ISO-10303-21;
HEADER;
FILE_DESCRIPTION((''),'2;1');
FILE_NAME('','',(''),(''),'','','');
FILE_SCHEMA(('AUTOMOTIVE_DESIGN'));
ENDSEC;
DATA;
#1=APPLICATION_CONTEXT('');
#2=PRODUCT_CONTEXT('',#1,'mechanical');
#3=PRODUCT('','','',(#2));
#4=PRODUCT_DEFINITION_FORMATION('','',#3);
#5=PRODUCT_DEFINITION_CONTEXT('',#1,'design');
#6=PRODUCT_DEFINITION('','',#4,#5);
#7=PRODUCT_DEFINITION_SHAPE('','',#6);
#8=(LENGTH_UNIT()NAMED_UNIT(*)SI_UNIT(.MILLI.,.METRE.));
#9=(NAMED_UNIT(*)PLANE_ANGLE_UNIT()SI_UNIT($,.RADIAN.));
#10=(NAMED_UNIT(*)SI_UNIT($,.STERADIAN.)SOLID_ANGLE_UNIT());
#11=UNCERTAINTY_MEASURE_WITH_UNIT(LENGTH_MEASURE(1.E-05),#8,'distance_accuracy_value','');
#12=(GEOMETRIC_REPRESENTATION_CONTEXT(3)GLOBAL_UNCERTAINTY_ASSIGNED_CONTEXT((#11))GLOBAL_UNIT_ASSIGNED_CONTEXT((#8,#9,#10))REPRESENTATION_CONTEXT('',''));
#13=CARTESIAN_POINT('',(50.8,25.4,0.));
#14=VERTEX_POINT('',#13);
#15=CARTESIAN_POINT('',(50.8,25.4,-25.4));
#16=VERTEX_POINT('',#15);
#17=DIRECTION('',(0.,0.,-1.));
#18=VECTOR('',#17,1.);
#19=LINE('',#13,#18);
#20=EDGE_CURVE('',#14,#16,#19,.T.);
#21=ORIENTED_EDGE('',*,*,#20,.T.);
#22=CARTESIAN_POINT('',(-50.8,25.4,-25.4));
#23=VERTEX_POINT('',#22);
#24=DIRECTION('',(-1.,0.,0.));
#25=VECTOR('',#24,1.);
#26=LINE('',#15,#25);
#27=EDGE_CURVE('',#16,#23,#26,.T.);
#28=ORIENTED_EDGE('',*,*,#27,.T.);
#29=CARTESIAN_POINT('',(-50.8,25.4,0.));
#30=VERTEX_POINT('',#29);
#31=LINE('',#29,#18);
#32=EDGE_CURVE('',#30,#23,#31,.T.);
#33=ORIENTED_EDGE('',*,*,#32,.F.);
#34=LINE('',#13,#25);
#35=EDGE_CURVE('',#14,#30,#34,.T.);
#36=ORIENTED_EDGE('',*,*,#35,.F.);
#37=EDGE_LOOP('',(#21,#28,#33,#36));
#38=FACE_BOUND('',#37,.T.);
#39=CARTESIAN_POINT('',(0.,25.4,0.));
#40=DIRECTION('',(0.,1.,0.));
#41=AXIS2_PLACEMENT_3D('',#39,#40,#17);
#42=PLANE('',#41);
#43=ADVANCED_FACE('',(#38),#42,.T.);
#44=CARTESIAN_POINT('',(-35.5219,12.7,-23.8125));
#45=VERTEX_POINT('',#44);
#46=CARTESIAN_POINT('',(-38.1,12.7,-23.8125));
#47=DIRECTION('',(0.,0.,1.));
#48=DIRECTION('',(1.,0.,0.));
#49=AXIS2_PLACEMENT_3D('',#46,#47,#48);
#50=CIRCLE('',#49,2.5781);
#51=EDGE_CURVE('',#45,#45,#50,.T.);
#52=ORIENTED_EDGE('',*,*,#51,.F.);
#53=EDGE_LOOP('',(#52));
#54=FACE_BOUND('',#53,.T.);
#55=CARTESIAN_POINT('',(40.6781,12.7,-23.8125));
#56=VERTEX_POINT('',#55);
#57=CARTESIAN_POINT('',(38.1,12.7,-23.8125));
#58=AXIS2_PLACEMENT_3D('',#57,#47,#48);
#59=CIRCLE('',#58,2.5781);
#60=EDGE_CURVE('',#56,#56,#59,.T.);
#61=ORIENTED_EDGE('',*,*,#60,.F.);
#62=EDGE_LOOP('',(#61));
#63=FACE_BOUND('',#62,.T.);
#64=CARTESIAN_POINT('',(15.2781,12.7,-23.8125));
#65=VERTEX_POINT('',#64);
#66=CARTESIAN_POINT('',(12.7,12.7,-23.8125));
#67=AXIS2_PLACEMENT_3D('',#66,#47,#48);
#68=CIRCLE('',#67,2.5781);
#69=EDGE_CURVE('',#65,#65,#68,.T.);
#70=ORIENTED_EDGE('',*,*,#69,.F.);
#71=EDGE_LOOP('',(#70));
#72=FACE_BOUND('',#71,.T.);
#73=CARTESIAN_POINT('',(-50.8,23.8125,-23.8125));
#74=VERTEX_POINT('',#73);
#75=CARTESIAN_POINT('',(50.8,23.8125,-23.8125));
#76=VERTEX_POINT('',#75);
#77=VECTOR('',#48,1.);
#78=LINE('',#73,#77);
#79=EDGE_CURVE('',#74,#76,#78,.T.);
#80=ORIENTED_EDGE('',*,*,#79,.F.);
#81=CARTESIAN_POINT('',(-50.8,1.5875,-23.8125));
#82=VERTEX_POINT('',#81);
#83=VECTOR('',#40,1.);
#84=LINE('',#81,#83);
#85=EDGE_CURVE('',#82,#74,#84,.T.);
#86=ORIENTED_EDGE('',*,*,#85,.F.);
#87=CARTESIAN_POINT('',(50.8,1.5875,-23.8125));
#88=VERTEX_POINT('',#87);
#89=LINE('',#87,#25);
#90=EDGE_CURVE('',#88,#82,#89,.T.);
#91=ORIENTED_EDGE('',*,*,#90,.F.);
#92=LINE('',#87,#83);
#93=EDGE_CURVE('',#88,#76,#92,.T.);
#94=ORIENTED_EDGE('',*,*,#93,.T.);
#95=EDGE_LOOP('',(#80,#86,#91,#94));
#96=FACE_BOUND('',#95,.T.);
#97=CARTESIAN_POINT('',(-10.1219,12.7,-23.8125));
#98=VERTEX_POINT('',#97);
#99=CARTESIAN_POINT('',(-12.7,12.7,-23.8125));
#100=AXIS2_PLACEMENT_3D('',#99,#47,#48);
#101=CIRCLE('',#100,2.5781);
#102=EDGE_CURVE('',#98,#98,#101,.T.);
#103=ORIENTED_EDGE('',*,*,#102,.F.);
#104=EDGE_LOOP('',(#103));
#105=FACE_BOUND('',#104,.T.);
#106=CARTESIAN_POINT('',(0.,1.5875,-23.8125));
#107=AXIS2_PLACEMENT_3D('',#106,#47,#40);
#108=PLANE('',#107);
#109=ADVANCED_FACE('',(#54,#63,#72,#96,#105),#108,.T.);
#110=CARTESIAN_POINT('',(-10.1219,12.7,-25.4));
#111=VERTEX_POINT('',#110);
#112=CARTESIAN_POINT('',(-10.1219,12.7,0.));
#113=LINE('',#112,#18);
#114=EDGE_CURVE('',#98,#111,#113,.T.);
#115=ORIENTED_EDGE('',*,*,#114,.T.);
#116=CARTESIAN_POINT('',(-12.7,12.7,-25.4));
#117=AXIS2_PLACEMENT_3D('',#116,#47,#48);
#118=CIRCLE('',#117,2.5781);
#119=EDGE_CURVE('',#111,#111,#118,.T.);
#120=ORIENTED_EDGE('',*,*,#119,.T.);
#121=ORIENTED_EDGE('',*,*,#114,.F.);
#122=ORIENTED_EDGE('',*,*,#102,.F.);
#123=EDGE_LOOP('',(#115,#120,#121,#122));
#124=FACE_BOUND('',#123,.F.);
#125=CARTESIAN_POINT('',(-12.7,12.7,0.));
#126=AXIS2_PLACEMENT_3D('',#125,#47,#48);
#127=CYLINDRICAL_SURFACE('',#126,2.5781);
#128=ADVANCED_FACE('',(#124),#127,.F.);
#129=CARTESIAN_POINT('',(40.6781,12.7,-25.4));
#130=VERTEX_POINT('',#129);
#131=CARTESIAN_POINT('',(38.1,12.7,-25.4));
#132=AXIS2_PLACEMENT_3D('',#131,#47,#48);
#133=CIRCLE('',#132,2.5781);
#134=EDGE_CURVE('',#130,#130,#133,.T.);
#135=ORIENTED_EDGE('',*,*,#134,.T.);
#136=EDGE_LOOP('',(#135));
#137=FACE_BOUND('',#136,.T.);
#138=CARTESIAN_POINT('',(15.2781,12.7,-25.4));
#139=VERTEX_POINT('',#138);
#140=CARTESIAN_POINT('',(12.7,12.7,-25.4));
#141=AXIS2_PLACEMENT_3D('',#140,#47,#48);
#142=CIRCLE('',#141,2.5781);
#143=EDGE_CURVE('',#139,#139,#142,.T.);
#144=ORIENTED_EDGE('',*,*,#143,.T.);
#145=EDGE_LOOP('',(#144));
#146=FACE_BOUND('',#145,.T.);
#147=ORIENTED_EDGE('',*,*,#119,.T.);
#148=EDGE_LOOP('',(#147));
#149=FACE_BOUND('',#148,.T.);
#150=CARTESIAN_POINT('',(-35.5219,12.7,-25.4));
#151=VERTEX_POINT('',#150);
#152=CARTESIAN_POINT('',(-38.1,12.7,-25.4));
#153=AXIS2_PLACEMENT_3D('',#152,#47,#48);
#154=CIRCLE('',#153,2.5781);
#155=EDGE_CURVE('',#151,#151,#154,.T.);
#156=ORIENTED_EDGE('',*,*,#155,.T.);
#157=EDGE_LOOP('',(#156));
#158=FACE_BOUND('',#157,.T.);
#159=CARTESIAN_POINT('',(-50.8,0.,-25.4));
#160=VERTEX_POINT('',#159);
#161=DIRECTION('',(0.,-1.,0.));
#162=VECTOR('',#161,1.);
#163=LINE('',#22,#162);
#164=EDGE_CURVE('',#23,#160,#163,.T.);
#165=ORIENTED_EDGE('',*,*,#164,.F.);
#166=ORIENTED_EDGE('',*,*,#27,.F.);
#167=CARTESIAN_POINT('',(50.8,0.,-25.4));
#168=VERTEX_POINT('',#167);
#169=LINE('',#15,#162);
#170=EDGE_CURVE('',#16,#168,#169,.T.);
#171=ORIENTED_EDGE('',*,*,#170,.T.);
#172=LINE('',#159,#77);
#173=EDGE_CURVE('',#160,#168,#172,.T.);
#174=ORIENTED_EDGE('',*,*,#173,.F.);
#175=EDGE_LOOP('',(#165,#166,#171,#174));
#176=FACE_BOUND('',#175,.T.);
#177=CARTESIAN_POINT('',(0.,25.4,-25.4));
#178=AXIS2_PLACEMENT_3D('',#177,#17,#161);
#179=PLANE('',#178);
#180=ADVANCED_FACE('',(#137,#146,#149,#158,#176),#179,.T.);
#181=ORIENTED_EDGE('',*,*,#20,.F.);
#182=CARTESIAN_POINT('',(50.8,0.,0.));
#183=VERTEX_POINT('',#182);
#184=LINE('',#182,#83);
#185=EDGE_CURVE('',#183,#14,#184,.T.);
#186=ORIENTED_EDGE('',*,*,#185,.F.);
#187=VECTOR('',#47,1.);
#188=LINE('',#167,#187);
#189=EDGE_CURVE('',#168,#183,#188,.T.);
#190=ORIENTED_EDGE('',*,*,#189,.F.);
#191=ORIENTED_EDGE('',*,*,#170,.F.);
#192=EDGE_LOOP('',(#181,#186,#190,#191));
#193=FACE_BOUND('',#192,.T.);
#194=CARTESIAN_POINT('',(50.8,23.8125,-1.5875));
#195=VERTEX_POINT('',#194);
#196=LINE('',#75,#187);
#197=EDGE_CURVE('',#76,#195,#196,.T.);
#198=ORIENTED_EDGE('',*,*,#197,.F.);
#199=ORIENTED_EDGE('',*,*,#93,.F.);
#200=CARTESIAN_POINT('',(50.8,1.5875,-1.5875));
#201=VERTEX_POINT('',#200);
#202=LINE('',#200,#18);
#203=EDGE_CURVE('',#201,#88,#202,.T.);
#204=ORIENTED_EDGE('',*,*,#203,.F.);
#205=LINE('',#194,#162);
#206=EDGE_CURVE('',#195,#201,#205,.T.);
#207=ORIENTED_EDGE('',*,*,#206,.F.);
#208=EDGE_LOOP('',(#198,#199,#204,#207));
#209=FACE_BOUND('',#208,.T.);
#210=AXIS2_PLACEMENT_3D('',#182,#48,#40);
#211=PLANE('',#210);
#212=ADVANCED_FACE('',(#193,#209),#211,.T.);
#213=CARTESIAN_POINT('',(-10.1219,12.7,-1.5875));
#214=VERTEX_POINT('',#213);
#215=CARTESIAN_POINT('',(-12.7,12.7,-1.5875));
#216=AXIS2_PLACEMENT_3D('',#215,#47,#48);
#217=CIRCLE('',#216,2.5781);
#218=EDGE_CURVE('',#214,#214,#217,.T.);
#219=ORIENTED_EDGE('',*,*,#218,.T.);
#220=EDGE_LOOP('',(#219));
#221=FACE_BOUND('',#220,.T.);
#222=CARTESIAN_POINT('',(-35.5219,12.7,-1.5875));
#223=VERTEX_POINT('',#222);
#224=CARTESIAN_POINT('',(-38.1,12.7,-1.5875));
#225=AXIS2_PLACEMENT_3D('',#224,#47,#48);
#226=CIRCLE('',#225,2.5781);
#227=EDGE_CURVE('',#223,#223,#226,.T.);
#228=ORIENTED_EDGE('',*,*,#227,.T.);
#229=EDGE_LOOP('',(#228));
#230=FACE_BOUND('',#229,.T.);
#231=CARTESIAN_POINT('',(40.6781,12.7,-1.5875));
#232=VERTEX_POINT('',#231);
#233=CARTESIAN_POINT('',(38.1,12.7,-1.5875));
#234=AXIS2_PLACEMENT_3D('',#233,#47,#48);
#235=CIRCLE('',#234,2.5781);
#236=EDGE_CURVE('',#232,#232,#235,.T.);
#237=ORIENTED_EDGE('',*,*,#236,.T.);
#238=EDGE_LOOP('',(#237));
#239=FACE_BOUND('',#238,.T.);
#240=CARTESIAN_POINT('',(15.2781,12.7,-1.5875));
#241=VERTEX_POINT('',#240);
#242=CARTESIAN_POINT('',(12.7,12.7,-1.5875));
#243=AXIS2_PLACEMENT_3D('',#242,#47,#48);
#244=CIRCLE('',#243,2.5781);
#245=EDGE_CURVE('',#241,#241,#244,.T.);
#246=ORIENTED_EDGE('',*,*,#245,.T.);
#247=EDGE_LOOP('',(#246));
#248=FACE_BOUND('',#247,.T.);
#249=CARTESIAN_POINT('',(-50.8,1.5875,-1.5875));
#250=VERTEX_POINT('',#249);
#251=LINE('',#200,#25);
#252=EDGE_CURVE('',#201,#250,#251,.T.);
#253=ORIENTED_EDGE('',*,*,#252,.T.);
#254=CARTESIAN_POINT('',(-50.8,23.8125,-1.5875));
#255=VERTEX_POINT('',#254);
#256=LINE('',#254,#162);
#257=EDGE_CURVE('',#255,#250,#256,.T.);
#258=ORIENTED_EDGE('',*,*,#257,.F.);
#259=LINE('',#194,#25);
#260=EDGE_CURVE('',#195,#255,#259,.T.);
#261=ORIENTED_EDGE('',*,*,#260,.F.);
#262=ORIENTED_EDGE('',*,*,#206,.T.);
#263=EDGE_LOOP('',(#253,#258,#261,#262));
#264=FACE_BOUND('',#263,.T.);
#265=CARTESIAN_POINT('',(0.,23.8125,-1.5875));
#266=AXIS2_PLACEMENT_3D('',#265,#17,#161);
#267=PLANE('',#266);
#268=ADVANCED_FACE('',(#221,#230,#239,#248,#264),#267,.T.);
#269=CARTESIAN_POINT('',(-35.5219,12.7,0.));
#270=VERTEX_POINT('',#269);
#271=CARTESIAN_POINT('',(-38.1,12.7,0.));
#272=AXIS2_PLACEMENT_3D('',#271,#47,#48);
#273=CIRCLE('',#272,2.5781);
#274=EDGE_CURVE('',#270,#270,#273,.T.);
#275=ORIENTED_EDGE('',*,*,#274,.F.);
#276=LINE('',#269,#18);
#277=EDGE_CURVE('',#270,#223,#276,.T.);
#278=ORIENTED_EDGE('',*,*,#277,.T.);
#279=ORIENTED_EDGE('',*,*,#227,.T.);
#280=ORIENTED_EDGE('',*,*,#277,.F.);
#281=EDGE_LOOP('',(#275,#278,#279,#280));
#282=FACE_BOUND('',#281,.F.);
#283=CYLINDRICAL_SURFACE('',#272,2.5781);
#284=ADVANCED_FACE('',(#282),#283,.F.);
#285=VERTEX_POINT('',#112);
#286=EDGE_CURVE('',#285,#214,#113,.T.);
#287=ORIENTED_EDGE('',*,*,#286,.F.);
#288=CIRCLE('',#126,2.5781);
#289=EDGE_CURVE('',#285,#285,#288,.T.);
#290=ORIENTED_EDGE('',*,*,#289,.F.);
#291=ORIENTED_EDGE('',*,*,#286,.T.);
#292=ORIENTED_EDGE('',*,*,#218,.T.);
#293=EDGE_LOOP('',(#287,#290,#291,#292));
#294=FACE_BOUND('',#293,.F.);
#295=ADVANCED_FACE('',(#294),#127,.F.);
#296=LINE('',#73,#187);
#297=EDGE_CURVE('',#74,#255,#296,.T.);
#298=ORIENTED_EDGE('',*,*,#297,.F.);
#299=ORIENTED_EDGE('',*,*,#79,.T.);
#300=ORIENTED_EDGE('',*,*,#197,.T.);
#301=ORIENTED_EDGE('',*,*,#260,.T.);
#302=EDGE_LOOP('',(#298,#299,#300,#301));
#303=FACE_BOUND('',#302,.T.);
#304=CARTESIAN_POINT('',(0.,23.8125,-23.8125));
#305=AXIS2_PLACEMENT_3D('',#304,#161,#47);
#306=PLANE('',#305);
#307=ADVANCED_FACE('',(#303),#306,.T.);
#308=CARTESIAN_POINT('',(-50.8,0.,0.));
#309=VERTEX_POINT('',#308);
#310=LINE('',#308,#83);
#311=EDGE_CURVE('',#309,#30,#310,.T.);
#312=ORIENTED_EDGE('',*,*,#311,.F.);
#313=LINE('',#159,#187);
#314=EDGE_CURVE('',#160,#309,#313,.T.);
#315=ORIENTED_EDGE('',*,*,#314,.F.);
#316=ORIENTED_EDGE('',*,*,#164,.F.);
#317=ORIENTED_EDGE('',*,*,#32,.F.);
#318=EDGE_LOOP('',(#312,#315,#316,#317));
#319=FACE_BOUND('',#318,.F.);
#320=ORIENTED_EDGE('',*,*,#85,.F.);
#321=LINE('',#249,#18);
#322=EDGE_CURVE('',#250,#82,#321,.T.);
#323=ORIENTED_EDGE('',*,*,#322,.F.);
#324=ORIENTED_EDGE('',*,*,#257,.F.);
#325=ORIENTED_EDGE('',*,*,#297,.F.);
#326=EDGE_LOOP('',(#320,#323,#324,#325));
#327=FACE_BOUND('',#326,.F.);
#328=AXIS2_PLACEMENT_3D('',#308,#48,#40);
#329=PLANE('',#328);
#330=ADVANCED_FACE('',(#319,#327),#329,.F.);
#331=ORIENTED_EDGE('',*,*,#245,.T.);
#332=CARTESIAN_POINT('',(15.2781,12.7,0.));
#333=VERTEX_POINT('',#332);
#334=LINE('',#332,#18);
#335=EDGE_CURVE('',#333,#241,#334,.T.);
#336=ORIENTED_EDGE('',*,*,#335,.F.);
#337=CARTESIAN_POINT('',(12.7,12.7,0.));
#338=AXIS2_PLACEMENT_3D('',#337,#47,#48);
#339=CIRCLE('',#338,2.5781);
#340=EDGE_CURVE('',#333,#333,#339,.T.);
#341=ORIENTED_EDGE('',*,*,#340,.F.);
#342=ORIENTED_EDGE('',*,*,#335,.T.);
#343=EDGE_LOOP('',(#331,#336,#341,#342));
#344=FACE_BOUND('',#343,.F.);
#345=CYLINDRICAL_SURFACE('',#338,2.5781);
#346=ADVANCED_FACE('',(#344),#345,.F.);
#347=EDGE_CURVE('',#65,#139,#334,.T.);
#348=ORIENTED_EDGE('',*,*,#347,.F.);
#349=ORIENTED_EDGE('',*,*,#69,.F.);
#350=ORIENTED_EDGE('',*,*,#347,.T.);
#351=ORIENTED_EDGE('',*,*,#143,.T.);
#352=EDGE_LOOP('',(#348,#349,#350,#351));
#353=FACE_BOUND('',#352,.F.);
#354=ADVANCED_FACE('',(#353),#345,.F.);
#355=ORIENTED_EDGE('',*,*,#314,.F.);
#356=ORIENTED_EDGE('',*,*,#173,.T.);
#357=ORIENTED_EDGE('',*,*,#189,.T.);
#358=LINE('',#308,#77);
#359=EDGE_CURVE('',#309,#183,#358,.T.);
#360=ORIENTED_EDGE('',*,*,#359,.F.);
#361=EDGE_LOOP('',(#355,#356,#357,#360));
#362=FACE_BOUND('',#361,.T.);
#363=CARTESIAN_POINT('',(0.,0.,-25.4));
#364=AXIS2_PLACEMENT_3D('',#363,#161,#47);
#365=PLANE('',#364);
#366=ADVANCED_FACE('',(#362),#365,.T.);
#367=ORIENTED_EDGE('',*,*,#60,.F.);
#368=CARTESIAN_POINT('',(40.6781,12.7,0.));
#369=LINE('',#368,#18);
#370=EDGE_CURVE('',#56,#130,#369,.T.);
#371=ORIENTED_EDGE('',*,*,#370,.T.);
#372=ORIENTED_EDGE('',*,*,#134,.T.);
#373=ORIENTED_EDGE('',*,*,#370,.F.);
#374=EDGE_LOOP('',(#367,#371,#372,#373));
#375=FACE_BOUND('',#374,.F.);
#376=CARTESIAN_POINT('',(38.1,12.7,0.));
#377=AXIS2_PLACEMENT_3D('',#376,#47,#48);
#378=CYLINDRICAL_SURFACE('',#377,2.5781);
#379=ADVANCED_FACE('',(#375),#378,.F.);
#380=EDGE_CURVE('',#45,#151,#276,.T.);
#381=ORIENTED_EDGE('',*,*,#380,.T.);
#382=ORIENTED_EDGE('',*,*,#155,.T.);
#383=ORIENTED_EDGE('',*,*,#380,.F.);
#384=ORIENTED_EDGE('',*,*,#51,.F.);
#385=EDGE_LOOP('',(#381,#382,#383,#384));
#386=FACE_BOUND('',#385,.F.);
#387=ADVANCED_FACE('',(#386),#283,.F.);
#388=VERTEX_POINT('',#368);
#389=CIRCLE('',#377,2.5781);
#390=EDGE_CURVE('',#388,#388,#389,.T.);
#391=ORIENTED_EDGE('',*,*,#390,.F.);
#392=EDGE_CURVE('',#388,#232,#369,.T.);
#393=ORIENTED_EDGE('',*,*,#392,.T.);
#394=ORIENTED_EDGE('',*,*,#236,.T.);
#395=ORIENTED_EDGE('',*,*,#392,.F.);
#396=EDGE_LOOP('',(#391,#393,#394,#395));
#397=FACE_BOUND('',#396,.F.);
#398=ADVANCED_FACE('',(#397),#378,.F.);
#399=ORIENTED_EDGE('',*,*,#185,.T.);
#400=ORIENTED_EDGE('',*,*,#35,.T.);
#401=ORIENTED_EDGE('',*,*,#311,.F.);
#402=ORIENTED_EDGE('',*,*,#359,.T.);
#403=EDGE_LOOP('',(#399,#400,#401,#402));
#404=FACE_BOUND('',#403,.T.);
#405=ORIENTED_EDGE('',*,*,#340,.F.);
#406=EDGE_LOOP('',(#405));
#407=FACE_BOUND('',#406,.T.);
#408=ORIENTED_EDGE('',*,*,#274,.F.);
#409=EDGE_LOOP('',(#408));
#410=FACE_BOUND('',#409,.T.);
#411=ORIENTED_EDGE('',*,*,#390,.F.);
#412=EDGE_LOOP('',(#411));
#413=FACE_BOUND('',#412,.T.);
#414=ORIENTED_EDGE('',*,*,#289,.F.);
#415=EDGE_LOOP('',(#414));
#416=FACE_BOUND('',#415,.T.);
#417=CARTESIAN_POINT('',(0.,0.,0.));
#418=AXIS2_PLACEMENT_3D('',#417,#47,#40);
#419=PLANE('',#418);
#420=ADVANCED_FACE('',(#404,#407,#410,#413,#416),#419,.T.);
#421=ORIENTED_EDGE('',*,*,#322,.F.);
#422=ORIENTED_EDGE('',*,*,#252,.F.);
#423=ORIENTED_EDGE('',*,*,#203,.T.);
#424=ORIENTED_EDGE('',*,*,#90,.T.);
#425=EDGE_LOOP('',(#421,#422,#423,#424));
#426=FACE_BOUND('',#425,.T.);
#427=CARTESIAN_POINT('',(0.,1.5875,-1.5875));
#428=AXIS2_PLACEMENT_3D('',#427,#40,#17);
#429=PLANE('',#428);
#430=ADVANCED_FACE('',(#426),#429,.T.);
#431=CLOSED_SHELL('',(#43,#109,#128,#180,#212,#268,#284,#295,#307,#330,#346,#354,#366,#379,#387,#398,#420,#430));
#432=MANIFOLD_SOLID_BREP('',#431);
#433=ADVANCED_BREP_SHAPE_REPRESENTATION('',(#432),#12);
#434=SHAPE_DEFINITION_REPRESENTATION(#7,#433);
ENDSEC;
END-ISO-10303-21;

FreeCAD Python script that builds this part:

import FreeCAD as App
import Part
import Sketcher
from FreeCAD import Vector
Q = App.Units.Quantity


def add_polygon(sketch, points):
    """Adds a closed chain of lines whose ends are joined by coincident constraints."""
    first, n = sketch.GeometryCount, len(points)
    for a, b in zip(points, points[1:] + points[:1]):
        sketch.addGeometry(Part.LineSegment(App.Vector(*a, 0), App.Vector(*b, 0)), False)
    for i in range(n):
        sketch.addConstraint(Sketcher.Constraint("Coincident", first + i, 2, first + (i + 1) % n, 1))

doc = App.newDocument("Part")
body = doc.addObject("PartDesign::Body", "Body")

# Sketch on YZ plane
sketch1 = body.newObject("Sketcher::SketchObject", "Sketch")
sketch1.AttachmentSupport = (doc.getObject("YZ_Plane"), [""])
sketch1.MapMode = "FlatFace"
add_polygon(sketch1, [(25.4, 0), (0, 0), (0, -25.4), (25.4, -25.4)])  # lines 0-3
add_polygon(sketch1, [(23.8125, -1.5875), (23.8125, -23.8125), (1.5875, -23.8125), (1.5875, -1.5875)])  # lines 4-7
sketch1.addConstraint([
    Sketcher.Constraint("Horizontal", 0),
    Sketcher.Constraint("Vertical", 1),
    Sketcher.Constraint("Horizontal", 2),
    Sketcher.Constraint("Vertical", 3),
    Sketcher.Constraint("Vertical", 4),
    Sketcher.Constraint("Horizontal", 5),
    Sketcher.Constraint("Vertical", 6),
    Sketcher.Constraint("Horizontal", 7),
    Sketcher.Constraint("Coincident", 0, 2, -1, 1),
    Sketcher.Constraint("Equal", 2, 1),
    Sketcher.Constraint("Equal", 7, 4),
    Sketcher.Constraint("DistanceX", 0, 2, 0, 1, Q("1 in")),
    Sketcher.Constraint("DistanceX", -1, 1, 5, 2, Q("0.0625 in")),
    Sketcher.Constraint("DistanceY", 6, 2, -1, 1, Q("0.0625 in")),
    Sketcher.Constraint("DistanceX", 4, 2, 2, 2, Q("0.0625 in")),
])
pad1 = body.newObject("PartDesign::Pad", "Pad")
pad1.Profile = sketch1
pad1.Length = Q("4 in")
pad1.Midplane = True

# Sketch on XY plane
sketch2 = body.newObject("Sketcher::SketchObject", "Sketch001")
sketch2.AttachmentSupport = (doc.getObject("XY_Plane"), [""])
sketch2.MapMode = "FlatFace"
sketch2.addGeometry([
    Part.Circle(Vector(-12.7, 12.7, 0), Vector(0, 0, 1), 2.5781),
    Part.Circle(Vector(12.7, 12.7, 0), Vector(0, 0, 1), 2.5781),
    Part.Circle(Vector(-38.1, 12.7, 0), Vector(0, 0, 1), 2.5781),
    Part.Circle(Vector(38.1, 12.7, 0), Vector(0, 0, 1), 2.5781),
], False)
sketch2.addConstraint([
    Sketcher.Constraint("Equal", 0, 1),
    Sketcher.Constraint("Equal", 1, 2),
    Sketcher.Constraint("Equal", 2, 3),
    Sketcher.Constraint("Symmetric", 0, 3, 1, 3, -2),
    Sketcher.Constraint("Symmetric", 2, 3, 3, 3, -2),
    Sketcher.Constraint("Horizontal", 1, 3, 2, 3),
    Sketcher.Constraint("Diameter", 0, Q("0.203 in")),
    Sketcher.Constraint("DistanceX", 0, 3, 1, 3, Q("1 in")),
    Sketcher.Constraint("DistanceX", 2, 3, 0, 3, Q("1 in")),
    Sketcher.Constraint("DistanceY", -1, 1, 0, 3, Q("0.5 in")),
])
pocket1 = body.newObject("PartDesign::Pocket", "Pocket")
pocket1.Profile = sketch2
pocket1.Length = Q("1 in")

doc.recompute()
